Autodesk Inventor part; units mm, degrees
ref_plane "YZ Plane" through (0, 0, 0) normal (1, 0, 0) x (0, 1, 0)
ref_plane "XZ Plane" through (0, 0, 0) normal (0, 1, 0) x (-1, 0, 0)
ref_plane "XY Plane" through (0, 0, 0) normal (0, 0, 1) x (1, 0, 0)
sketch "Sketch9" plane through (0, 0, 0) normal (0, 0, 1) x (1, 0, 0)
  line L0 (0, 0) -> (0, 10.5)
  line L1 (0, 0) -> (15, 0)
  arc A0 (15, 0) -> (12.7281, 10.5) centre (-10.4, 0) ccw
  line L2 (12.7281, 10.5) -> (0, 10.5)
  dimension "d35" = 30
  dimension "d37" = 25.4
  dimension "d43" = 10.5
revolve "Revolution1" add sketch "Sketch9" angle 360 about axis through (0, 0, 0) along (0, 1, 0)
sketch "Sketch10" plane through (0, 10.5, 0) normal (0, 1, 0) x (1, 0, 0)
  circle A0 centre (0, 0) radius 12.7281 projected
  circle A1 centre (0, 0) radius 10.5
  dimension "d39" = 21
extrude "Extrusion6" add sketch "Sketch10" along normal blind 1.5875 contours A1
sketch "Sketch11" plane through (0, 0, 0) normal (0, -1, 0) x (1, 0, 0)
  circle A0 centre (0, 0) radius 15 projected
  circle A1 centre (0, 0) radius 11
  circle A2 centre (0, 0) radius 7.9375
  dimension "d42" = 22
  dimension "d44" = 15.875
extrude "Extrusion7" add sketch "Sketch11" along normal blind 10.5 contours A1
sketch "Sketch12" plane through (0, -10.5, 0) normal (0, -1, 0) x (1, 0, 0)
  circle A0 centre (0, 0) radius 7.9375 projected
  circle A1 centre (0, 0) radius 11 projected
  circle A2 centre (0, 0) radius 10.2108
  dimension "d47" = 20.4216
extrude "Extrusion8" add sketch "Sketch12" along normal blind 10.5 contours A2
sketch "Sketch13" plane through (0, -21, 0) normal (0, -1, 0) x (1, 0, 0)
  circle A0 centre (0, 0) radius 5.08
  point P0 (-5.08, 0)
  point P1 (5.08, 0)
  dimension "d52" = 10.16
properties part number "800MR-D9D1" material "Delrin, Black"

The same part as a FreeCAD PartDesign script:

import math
import FreeCAD as App
import Part
import Sketcher
Q = App.Units.Quantity

doc = App.newDocument("Part")
params = doc.addObject("Spreadsheet::Sheet", "Params")
for row, (alias, value) in enumerate([
    ("sketch1_radius", "25.4 mm"),
    ("sketch1_height", "10.5 mm"),
    ("sketch1_width", "15 mm"),
    ("revolution_angle", "360 deg"),
    ("sketch2_diameter", "21 mm"),
    ("pad1_length", "1.5875 mm"),
    ("sketch3_diameter", "22 mm"),
    ("pad2_length", "10.5 mm"),
    ("pad3_length", "10.5 mm"),
], start=1):
    params.set(f"A{row}", alias)
    params.set(f"B{row}", "=" + value)
    params.setAlias(f"B{row}", alias)

body = doc.addObject("PartDesign::Body", "Body")

sketch1 = doc.addObject("Sketcher::SketchObject", "Sketch")
body.addObject(sketch1)
sketch1.AttachmentSupport = (doc.XY_Plane, [""])
sketch1.MapMode = "FlatFace"
sketch1.addGeometry([
    Part.LineSegment(App.Vector(0, 10, 0), App.Vector(0, 0, 0)),
    Part.LineSegment(App.Vector(0, 0, 0), App.Vector(15, 0, 0)),
    Part.ArcOfCircle(Part.Circle(App.Vector(-10, 0, 0), App.Vector(0, 0, 1), 25), math.radians(0), math.radians(24)),
    Part.LineSegment(App.Vector(13, 10, 0), App.Vector(0, 10, 0)),
], False)
sketch1.addConstraint([
    Sketcher.Constraint("Coincident", 0, 2, 1, 1),
    Sketcher.Constraint("Coincident", 1, 2, 2, 1),
    Sketcher.Constraint("Coincident", 2, 2, 3, 1),
    Sketcher.Constraint("Coincident", 3, 2, 0, 1),
    Sketcher.Constraint("Vertical", 0),
    Sketcher.Constraint("Horizontal", 1),
    Sketcher.Constraint("Horizontal", 3),
    Sketcher.Constraint("Coincident", 0, 2, -1, 1),
    Sketcher.Constraint("PointOnObject", 2, 3, -1),
    Sketcher.Constraint("Radius", 2, Q("25.4 mm")),
    Sketcher.Constraint("DistanceY", 0, 2, 0, 1, Q("10.5 mm")),
    Sketcher.Constraint("DistanceX", 1, 1, 1, 2, Q("15 mm")),
])
sketch1.setExpression("Constraints[9]", "Params.sketch1_radius")
sketch1.setExpression("Constraints[10]", "Params.sketch1_height")
sketch1.setExpression("Constraints[11]", "Params.sketch1_width")
revolution = doc.addObject("PartDesign::Revolution", "Revolution")
body.addObject(revolution)
revolution.Profile = sketch1
revolution.ReferenceAxis = (sketch1, ["V_Axis"])
revolution.setExpression("Angle", "Params.revolution_angle")

sketch2 = doc.addObject("Sketcher::SketchObject", "Sketch001")
body.addObject(sketch2)
sketch2.AttachmentSupport = (doc.XZ_Plane, [""])
sketch2.MapMode = "FlatFace"
sketch2.AttachmentOffset = App.Placement(App.Vector(0, 0, -10.5), App.Rotation())
sketch2.addGeometry(Part.Circle(App.Vector(0, 0, 0), App.Vector(0, 0, 1), 10), False)
sketch2.addConstraint([
    Sketcher.Constraint("Coincident", 0, 3, -1, 1),
    Sketcher.Constraint("Diameter", 0, Q("21 mm")),
])
sketch2.setExpression("Constraints[1]", "Params.sketch2_diameter")
pad1 = doc.addObject("PartDesign::Pad", "Pad")
body.addObject(pad1)
pad1.Profile = sketch2
pad1.setExpression("Length", "Params.pad1_length")
pad1.Reversed = True

sketch3 = doc.addObject("Sketcher::SketchObject", "Sketch002")
body.addObject(sketch3)
sketch3.AttachmentSupport = (doc.XZ_Plane, [""])
sketch3.MapMode = "FlatFace"
sketch3.addGeometry([
    Part.Circle(App.Vector(0, 0, 0), App.Vector(0, 0, 1), 11),
    Part.Circle(App.Vector(0, 0, 0), App.Vector(0, 0, 1), 8),
], False)
sketch3.addConstraint([
    Sketcher.Constraint("Coincident", 0, 3, -1, 1),
    Sketcher.Constraint("Coincident", 1, 3, -1, 1),
    Sketcher.Constraint("Diameter", 0, Q("22 mm")),
    Sketcher.Constraint("Diameter", 1, Q("15.875 mm")),
])
sketch3.setExpression("Constraints[2]", "Params.sketch3_diameter")
pad2 = doc.addObject("PartDesign::Pad", "Pad001")
body.addObject(pad2)
pad2.Profile = sketch3
pad2.setExpression("Length", "Params.pad2_length")

sketch4 = doc.addObject("Sketcher::SketchObject", "Sketch003")
body.addObject(sketch4)
sketch4.AttachmentSupport = (doc.XZ_Plane, [""])
sketch4.MapMode = "FlatFace"
sketch4.AttachmentOffset = App.Placement(App.Vector(0, 0, 10.5), App.Rotation())
sketch4.addGeometry([
    Part.Circle(App.Vector(0, 0, 0), App.Vector(0, 0, 1), 10),
    Part.Circle(App.Vector(0, 0, 0), App.Vector(0, 0, 1), 8),
], False)
sketch4.addConstraint([
    Sketcher.Constraint("Coincident", 0, 3, -1, 1),
    Sketcher.Constraint("Coincident", 1, 3, -1, 1),
    Sketcher.Constraint("Diameter", 0, Q("20.4216 mm")),
    Sketcher.Constraint("Diameter", 1, Q("15.875 mm")),
])
pad3 = doc.addObject("PartDesign::Pad", "Pad002")
body.addObject(pad3)
pad3.Profile = sketch4
pad3.setExpression("Length", "Params.pad3_length")

doc.recompute()
